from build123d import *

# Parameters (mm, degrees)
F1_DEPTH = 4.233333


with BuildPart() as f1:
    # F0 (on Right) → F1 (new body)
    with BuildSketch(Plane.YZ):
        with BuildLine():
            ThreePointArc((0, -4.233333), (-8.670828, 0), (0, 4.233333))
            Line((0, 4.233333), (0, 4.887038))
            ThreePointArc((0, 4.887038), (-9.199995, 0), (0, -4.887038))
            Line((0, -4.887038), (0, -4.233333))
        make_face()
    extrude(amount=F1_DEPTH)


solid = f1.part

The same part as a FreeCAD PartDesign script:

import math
import FreeCAD as App
import Part
import Sketcher

doc = App.newDocument("Part")
body = doc.addObject("PartDesign::Body", "Body")

# Sketch on YZ plane
sketch1 = body.newObject("Sketcher::SketchObject", "Sketch")
sketch1.AttachmentSupport = (doc.getObject("YZ_Plane"), [""])
sketch1.MapMode = "FlatFace"
sketch1.addGeometry(Part.ArcOfCircle(Part.Circle(App.Vector(-3.302, 0, 0), App.Vector(0, 0, 1), 5.368828), math.radians(52.045766), math.radians(307.954234)), False)
sketch1.addGeometry(Part.LineSegment(App.Vector(0, 4.233333, 0), App.Vector(0, 4.887038, 0)), False)
sketch1.addGeometry(Part.ArcOfCircle(Part.Circle(App.Vector(-3.302, 0, 0), App.Vector(0, 0, 1), 5.897995), math.radians(55.954487), math.radians(304.045513)), False)
sketch1.addGeometry(Part.LineSegment(App.Vector(0, -4.887038, 0), App.Vector(0, -4.233333, 0)), False)
sketch1.addConstraint(Sketcher.Constraint("Coincident", 0, 1, 1, 1))
sketch1.addConstraint(Sketcher.Constraint("Coincident", 1, 2, 2, 1))
sketch1.addConstraint(Sketcher.Constraint("Coincident", 2, 2, 3, 1))
sketch1.addConstraint(Sketcher.Constraint("Coincident", 3, 2, 0, 2))
sketch1.addConstraint(Sketcher.Constraint("Vertical", 1))
sketch1.addConstraint(Sketcher.Constraint("Vertical", 3))
sketch1.addConstraint(Sketcher.Constraint("Coincident", 2, 3, 0, 3))
sketch1.addConstraint(Sketcher.Constraint("Symmetric", 1, 2, 2, 2, -1, 1))
sketch1.addConstraint(Sketcher.Constraint("PointOnObject", 0, 3, -1))
sketch1.addConstraint(Sketcher.Constraint("DistanceX", 0, 3, -1, 1, 3.302))
sketch1.addConstraint(Sketcher.Constraint("Radius", 0, 5.368828))
sketch1.addConstraint(Sketcher.Constraint("Radius", 2, 5.897995))
pad1 = body.newObject("PartDesign::Pad", "Pad")
pad1.Profile = sketch1
pad1.Length = 4.233333

doc.recompute()
